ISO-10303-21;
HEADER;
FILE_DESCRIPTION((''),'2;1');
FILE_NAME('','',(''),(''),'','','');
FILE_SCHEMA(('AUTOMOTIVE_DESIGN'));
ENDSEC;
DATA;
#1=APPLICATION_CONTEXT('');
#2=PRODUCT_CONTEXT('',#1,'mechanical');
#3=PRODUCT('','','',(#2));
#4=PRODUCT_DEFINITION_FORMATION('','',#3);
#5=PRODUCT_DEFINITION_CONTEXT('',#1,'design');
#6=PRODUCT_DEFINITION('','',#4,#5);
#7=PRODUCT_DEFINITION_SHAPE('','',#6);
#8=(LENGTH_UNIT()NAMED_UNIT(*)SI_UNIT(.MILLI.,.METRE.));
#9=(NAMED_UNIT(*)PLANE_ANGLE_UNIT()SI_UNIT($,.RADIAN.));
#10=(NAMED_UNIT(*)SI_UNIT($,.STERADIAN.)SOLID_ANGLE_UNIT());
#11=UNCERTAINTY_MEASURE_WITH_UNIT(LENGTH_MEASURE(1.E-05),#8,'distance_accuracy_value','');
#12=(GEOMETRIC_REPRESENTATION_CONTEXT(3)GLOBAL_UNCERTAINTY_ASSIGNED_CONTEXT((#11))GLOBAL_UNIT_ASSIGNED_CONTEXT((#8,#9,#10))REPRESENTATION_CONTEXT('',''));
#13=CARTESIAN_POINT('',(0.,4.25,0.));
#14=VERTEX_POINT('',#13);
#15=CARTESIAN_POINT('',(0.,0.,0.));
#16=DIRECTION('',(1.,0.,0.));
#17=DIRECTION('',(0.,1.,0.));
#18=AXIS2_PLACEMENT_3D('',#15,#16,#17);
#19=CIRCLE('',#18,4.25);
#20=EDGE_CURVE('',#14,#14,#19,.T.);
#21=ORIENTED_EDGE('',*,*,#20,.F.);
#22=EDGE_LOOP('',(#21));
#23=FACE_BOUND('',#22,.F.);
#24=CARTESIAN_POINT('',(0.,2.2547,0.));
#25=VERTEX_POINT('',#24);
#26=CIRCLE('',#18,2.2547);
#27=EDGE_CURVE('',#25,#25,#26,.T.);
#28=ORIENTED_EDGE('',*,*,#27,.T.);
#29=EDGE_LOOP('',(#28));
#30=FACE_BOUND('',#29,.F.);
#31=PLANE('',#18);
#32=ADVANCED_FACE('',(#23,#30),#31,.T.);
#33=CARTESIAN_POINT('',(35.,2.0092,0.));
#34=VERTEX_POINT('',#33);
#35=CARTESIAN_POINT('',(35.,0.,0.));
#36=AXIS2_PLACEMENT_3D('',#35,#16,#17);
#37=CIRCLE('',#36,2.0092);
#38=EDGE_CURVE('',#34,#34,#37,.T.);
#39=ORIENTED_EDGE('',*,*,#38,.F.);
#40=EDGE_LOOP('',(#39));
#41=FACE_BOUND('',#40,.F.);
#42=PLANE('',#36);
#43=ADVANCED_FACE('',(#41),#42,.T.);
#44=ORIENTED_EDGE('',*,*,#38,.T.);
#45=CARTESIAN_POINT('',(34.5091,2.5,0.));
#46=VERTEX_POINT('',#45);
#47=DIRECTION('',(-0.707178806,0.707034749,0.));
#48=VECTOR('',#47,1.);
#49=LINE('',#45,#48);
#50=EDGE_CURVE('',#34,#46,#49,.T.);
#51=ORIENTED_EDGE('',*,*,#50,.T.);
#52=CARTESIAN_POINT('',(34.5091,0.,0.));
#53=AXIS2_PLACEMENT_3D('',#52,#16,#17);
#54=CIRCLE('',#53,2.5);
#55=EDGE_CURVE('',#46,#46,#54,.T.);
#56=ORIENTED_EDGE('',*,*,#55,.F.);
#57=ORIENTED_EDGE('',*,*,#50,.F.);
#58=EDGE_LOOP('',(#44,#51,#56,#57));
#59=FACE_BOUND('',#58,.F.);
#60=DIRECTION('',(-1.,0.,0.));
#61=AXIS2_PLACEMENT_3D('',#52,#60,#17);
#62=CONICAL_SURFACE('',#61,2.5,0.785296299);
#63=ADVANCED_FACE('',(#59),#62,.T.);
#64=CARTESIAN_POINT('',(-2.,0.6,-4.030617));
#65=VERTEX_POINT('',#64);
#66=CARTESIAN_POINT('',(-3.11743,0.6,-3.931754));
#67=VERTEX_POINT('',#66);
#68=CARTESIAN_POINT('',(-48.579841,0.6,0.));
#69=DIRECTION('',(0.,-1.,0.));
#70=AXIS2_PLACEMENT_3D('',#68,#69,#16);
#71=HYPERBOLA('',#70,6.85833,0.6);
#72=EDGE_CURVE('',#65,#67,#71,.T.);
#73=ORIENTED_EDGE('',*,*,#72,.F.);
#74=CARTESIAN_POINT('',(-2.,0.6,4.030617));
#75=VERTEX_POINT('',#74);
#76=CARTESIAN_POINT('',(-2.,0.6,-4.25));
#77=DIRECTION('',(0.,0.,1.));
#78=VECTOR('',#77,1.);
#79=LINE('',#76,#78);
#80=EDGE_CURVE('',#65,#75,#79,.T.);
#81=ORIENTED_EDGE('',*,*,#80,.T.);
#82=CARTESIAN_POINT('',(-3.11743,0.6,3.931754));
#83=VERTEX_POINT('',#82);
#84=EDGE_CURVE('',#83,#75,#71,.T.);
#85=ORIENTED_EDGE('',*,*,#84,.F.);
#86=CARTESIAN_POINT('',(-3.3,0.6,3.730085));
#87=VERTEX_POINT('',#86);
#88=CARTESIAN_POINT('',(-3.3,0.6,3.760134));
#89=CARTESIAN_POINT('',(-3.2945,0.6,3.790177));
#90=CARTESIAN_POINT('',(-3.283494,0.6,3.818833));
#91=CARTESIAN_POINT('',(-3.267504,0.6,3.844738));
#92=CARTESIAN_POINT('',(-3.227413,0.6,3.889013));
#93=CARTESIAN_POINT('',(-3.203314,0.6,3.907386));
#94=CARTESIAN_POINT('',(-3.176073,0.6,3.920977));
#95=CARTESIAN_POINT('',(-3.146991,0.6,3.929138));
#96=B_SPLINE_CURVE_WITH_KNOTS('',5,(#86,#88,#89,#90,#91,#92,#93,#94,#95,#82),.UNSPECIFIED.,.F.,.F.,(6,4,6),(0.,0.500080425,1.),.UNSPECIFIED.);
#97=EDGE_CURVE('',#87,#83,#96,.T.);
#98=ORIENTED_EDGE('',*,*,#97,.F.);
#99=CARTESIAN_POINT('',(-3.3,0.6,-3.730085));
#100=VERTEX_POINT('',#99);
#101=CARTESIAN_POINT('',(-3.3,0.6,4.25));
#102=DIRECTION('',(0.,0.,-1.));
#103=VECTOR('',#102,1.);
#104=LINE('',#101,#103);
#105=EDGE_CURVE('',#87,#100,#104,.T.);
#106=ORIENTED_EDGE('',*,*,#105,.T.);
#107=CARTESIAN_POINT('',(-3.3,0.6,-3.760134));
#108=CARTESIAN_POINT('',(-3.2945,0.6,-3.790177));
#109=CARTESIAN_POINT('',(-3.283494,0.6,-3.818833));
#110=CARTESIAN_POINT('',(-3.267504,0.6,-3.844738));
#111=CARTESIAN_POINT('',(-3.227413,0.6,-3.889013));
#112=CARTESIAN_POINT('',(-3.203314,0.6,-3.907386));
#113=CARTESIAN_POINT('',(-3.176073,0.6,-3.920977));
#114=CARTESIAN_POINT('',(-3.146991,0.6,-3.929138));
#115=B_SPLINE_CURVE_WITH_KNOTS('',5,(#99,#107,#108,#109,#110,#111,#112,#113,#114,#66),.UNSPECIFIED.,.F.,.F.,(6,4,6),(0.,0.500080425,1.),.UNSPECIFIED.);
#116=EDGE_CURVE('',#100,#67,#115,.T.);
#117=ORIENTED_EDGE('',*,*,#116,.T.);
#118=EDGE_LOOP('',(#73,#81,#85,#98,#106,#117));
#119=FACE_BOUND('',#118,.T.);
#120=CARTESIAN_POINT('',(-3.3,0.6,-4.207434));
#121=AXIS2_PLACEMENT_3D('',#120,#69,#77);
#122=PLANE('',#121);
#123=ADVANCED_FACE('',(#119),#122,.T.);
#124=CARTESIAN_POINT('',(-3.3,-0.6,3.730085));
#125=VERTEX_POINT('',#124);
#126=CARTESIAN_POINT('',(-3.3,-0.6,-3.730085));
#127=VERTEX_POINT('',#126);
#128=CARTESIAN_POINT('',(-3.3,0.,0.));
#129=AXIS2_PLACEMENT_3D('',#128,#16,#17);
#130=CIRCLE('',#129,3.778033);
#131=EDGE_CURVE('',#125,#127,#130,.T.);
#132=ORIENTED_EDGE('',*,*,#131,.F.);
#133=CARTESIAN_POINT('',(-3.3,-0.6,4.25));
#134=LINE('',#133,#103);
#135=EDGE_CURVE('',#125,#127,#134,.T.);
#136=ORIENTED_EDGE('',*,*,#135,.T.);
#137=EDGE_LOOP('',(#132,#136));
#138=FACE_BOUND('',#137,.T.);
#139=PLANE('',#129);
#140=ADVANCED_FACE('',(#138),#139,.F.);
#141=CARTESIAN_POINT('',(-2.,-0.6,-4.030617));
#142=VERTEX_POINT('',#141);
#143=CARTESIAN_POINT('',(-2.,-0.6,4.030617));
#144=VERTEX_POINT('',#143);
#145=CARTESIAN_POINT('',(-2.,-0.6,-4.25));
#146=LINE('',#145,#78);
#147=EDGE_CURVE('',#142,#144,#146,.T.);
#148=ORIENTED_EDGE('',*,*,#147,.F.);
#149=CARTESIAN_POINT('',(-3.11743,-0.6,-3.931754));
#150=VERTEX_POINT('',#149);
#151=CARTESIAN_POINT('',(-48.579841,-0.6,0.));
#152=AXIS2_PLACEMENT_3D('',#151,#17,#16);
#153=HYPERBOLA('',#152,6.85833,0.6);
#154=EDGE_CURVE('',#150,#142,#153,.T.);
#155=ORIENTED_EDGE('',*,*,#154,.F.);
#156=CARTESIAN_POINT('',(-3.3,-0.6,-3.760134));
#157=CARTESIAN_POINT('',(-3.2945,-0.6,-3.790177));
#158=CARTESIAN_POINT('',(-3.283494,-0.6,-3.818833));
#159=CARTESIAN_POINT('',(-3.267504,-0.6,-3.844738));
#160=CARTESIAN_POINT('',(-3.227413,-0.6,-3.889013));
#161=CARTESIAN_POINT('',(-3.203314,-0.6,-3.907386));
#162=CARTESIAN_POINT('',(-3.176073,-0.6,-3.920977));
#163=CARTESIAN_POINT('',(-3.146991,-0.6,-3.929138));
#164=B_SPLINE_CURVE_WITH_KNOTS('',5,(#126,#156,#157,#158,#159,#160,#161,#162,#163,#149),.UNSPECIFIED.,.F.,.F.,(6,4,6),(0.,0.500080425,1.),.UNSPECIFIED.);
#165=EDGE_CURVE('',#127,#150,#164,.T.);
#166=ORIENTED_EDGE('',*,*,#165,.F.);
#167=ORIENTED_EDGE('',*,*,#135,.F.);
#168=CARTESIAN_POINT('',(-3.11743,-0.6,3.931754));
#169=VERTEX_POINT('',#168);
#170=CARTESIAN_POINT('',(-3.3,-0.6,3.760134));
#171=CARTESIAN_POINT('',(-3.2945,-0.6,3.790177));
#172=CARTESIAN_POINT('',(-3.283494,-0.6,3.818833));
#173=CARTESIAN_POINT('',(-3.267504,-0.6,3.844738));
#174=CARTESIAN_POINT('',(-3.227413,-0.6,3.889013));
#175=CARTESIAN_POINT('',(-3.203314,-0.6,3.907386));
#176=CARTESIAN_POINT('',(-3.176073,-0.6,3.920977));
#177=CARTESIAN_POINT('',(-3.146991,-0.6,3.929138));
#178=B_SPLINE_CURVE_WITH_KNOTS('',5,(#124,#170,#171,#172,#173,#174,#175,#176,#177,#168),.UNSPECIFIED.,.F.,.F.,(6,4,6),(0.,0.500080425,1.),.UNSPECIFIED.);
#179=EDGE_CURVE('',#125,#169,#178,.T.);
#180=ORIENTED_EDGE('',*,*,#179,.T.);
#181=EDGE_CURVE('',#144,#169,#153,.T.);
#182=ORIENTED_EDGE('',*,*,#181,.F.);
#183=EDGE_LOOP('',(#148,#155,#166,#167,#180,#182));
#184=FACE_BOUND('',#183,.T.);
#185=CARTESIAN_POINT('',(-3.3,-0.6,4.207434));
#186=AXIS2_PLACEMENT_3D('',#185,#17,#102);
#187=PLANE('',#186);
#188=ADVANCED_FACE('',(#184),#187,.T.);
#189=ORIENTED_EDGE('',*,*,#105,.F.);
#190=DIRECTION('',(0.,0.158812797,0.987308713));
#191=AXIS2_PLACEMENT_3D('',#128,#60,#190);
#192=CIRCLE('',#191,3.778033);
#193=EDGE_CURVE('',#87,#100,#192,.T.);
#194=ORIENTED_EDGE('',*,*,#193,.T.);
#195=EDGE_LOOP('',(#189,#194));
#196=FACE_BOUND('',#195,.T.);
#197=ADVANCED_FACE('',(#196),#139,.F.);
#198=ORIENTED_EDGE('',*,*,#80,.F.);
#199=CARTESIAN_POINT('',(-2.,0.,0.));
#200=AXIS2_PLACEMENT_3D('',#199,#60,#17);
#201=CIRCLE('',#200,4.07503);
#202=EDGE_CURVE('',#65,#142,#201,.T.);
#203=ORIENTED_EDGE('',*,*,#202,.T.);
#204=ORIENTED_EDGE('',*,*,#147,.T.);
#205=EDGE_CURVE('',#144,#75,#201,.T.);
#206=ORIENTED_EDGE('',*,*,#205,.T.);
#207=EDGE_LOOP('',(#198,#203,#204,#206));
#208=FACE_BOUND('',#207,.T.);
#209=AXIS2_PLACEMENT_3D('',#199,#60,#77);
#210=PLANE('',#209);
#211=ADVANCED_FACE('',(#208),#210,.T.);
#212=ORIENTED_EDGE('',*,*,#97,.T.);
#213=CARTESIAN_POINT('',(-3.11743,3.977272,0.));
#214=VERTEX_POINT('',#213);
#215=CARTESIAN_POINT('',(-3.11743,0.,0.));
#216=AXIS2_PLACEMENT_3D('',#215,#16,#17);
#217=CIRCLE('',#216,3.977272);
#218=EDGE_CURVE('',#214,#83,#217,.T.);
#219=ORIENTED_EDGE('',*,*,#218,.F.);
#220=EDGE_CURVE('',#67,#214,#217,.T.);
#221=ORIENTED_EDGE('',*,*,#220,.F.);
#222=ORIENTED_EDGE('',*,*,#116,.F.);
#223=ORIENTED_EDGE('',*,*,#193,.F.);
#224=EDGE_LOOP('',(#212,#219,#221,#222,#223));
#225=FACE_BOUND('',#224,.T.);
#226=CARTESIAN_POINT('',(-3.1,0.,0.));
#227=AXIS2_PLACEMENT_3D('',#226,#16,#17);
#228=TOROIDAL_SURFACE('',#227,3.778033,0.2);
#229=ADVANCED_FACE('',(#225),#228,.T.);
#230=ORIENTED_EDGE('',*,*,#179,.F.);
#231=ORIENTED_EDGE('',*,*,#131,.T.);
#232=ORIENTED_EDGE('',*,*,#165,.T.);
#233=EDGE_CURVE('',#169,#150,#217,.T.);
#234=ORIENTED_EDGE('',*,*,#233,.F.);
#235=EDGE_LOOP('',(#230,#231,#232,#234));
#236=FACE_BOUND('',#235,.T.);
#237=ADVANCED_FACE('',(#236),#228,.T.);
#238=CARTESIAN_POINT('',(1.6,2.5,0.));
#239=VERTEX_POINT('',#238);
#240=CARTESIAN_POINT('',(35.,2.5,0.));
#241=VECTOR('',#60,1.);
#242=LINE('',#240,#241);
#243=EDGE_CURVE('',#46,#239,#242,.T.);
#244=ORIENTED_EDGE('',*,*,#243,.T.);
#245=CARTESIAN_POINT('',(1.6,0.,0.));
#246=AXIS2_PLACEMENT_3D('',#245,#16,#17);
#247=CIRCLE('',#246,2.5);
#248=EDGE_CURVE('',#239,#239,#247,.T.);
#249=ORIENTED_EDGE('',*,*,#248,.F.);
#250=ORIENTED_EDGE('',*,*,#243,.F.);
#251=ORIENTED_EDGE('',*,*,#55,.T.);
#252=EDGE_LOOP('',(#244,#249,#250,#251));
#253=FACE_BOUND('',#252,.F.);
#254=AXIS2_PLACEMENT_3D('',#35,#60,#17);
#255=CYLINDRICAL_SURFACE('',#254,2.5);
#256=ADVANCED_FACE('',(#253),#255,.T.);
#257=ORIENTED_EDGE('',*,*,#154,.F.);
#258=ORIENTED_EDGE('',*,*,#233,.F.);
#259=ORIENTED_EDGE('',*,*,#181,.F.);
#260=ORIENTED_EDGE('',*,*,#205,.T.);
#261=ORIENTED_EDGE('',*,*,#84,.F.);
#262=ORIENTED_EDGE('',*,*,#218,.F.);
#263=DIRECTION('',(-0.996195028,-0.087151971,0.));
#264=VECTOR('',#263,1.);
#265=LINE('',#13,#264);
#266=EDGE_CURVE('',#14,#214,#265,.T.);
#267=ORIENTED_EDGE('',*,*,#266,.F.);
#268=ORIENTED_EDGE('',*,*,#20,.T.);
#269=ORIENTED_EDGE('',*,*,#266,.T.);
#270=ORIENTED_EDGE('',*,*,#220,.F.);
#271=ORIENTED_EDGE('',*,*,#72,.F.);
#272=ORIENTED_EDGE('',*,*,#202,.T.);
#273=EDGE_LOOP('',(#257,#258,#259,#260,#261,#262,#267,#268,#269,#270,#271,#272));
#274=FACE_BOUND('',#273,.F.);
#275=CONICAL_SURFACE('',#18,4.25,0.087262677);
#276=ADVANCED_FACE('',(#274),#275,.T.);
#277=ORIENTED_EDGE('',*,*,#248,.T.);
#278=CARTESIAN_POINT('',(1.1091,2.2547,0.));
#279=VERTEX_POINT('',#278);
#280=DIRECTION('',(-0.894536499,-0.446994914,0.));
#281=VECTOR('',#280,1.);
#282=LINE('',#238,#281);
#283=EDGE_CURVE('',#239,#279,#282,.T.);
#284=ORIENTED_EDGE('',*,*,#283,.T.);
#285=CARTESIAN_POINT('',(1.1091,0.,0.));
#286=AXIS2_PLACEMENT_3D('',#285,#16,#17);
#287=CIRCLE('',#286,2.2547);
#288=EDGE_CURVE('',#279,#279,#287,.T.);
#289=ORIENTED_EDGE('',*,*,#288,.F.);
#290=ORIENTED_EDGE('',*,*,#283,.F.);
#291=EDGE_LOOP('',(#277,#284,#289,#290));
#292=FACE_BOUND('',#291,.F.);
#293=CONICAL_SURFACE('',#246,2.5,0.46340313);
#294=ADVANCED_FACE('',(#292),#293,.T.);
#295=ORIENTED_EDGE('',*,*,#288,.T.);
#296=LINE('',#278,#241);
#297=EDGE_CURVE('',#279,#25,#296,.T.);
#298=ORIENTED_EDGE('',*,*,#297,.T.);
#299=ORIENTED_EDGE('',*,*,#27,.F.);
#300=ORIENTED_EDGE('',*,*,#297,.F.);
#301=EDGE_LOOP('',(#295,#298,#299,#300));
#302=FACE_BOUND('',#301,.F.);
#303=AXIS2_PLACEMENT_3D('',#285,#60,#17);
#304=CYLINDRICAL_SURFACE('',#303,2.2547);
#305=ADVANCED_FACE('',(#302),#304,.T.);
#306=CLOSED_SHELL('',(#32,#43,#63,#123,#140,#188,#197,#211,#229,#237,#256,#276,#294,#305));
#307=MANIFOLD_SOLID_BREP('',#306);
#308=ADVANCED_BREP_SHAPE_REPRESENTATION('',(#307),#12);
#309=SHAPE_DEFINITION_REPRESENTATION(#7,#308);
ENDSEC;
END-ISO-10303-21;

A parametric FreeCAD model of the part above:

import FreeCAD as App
import Part
import Sketcher

V = App.Vector
Q = App.Units.Quantity


def edges_at(feature, points):
    """Names of the edges that pass closest to the given points."""
    edges = feature.Shape.Edges
    near = lambda p: min(range(len(edges)), key=lambda i: edges[i].distToShape(Part.Vertex(*p))[0])
    return sorted({f"Edge{near(p) + 1}" for p in points})

doc = App.newDocument("Part")
body = doc.addObject("PartDesign::Body", "Body")

# Sketch on XY plane
sketch1 = body.newObject("Sketcher::SketchObject", "Sketch")
sketch1.AttachmentSupport = (doc.getObject("XY_Plane"), [""])
sketch1.MapMode = "FlatFace"
sketch1.addGeometry(Part.LineSegment(V(-3.3, 3.9613, 0), V(-3.3, 0, 0)), False)
sketch1.addGeometry(Part.LineSegment(V(-3.3, 0, 0), V(35, 0, 0)), False)
sketch1.addGeometry(Part.LineSegment(V(35, 0, 0), V(35, 2.5, 0)), False)
sketch1.addGeometry(Part.LineSegment(V(35, 2.5, 0), V(1.6, 2.5, 0)), False)
sketch1.addGeometry(Part.LineSegment(V(1.6, 2.5, 0), V(1.1091, 2.2547, 0)), False)
sketch1.addGeometry(Part.LineSegment(V(1.1091, 2.2547, 0), V(0, 2.2547, 0)), False)
sketch1.addGeometry(Part.LineSegment(V(0, 2.2547, 0), V(0, 4.25, 0)), False)
sketch1.addGeometry(Part.LineSegment(V(0, 4.25, 0), V(-3.3, 3.9613, 0)), False)
sketch1.addConstraint(Sketcher.Constraint("Coincident", 0, 2, 1, 1))
sketch1.addConstraint(Sketcher.Constraint("Coincident", 1, 2, 2, 1))
sketch1.addConstraint(Sketcher.Constraint("Coincident", 2, 2, 3, 1))
sketch1.addConstraint(Sketcher.Constraint("Coincident", 3, 2, 4, 1))
sketch1.addConstraint(Sketcher.Constraint("Coincident", 4, 2, 5, 1))
sketch1.addConstraint(Sketcher.Constraint("Coincident", 5, 2, 6, 1))
sketch1.addConstraint(Sketcher.Constraint("Coincident", 6, 2, 7, 1))
sketch1.addConstraint(Sketcher.Constraint("Coincident", 7, 2, 0, 1))
sketch1.addConstraint(Sketcher.Constraint("Vertical", 0))
sketch1.addConstraint(Sketcher.Constraint("Horizontal", 1))
sketch1.addConstraint(Sketcher.Constraint("Vertical", 2))
sketch1.addConstraint(Sketcher.Constraint("Horizontal", 3))
sketch1.addConstraint(Sketcher.Constraint("Horizontal", 5))
sketch1.addConstraint(Sketcher.Constraint("Vertical", 6))
sketch1.addConstraint(Sketcher.Constraint("PointOnObject", 0, 2, -1))
sketch1.addConstraint(Sketcher.Constraint("PointOnObject", 5, 2, -2))
sketch1.addConstraint(Sketcher.Constraint("DistanceX", 3, 2, 3, 1, 33.4))
sketch1.addConstraint(Sketcher.Constraint("DistanceX", -1, 1, 1, 2, 35.0))
sketch1.addConstraint(Sketcher.Constraint("DistanceX", 0, 2, -1, 1, 3.3))
sketch1.addConstraint(Sketcher.Constraint("Angle", 7, Q("-175.0002 deg")))
sketch1.addConstraint(Sketcher.Constraint("DistanceY", 2, 1, 2, 2, 2.5))
sketch1.addConstraint(Sketcher.Constraint("DistanceX", 4, 2, 3, 2, 0.491))
sketch1.addConstraint(Sketcher.Constraint("Angle", 4, Q("-153.449 deg")))
sketch1.addConstraint(Sketcher.Constraint("DistanceY", -1, 1, 6, 2, 4.25))
revolution = body.newObject("PartDesign::Revolution", "Revolution")
revolution.Profile = sketch1
revolution.ReferenceAxis = (sketch1, ["H_Axis"])
revolution.Angle = 360
doc.recompute()

fillet = body.newObject("PartDesign::Fillet", "Fillet")
fillet.Base = (revolution, edges_at(revolution, [(-3.3, -3.961, 0)]))
fillet.Radius = 0.2

# Sketch on YZ plane
sketch2 = body.newObject("Sketcher::SketchObject", "Sketch001")
sketch2.AttachmentSupport = (doc.getObject("YZ_Plane"), [""])
sketch2.MapMode = "FlatFace"
sketch2.AttachmentOffset = App.Placement(V(0, 0, -3.3), App.Rotation())
sketch2.addGeometry(Part.LineSegment(V(-0.6, 4.25, 0), V(0.6, 4.25, 0)), False)
sketch2.addGeometry(Part.LineSegment(V(0.6, 4.25, 0), V(0.6, -4.25, 0)), False)
sketch2.addGeometry(Part.LineSegment(V(0.6, -4.25, 0), V(-0.6, -4.25, 0)), False)
sketch2.addGeometry(Part.LineSegment(V(-0.6, -4.25, 0), V(-0.6, 4.25, 0)), False)
sketch2.addConstraint(Sketcher.Constraint("Coincident", 0, 2, 1, 1))
sketch2.addConstraint(Sketcher.Constraint("Coincident", 1, 2, 2, 1))
sketch2.addConstraint(Sketcher.Constraint("Coincident", 2, 2, 3, 1))
sketch2.addConstraint(Sketcher.Constraint("Coincident", 3, 2, 0, 1))
sketch2.addConstraint(Sketcher.Constraint("Horizontal", 0))
sketch2.addConstraint(Sketcher.Constraint("Vertical", 1))
sketch2.addConstraint(Sketcher.Constraint("Horizontal", 2))
sketch2.addConstraint(Sketcher.Constraint("Vertical", 3))
sketch2.addConstraint(Sketcher.Constraint("Symmetric", 0, 2, 2, 2, -1, 1))
sketch2.addConstraint(Sketcher.Constraint("DistanceX", 0, 1, 0, 2, 1.2))
sketch2.addConstraint(Sketcher.Constraint("DistanceY", 1, 2, 1, 1, 8.5))
pocket1 = body.newObject("PartDesign::Pocket", "Pocket")
pocket1.Profile = sketch2
pocket1.Length = 1.3
pocket1.Reversed = True
doc.recompute()

chamfer = body.newObject("PartDesign::Chamfer", "Chamfer")
chamfer.Base = (pocket1, edges_at(pocket1, [(35, -2.5, 0)]))
chamfer.ChamferType = "Two distances"
chamfer.Size = 0.4908
chamfer.Size2 = 0.4909

doc.recompute()
